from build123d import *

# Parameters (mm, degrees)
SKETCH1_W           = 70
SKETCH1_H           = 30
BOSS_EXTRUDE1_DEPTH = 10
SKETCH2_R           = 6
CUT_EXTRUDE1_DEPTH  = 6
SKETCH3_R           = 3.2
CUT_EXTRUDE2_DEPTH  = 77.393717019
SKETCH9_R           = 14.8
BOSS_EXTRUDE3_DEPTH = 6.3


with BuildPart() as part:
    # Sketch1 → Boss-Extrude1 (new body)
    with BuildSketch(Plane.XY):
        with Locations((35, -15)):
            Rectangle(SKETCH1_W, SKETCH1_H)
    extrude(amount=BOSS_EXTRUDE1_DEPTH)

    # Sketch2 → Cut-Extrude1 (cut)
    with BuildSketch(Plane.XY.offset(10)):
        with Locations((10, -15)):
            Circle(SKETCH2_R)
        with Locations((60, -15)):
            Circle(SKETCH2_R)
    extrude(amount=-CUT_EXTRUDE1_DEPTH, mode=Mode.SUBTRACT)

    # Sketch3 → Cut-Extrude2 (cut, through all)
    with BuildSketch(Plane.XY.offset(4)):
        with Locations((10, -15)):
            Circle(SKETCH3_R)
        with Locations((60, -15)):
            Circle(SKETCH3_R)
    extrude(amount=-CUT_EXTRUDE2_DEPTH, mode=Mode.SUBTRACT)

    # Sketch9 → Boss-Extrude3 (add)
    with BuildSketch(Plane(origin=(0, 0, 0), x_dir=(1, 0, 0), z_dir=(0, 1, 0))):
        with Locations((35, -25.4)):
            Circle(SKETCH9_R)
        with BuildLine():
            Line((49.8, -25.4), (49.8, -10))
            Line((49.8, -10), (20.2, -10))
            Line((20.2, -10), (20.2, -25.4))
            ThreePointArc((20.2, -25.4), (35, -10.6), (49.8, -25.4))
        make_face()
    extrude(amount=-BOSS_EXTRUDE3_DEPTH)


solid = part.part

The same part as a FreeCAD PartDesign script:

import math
import FreeCAD as App
import Part
import Sketcher
from FreeCAD import Vector
Q = App.Units.Quantity

doc = App.newDocument("Part")
params = doc.addObject("Spreadsheet::Sheet", "Params")
for row, (alias, value) in enumerate([
    ("sketch1_width", "70 mm"),
    ("sketch1_height", "30 mm"),
    ("pad1_length", "10 mm"),
    ("sketch2_diameter", "12 mm"),
    ("pocket1_length", "6 mm"),
    ("sketch3_diameter", "6.4 mm"),
    ("sketch4_radius", "14.8 mm"),
    ("sketch4_height", "15.4 mm"),
    ("pad2_length", "6.3 mm"),
], start=1):
    params.set(f"A{row}", alias)
    params.set(f"B{row}", "=" + value)
    params.setAlias(f"B{row}", alias)

body = doc.addObject("PartDesign::Body", "Body")

sketch1 = body.newObject("Sketcher::SketchObject", "Sketch")
sketch1.AttachmentSupport = (doc.getObject("XY_Plane"), [""])
sketch1.MapMode = "FlatFace"
sketch1.addGeometry([
    Part.LineSegment(Vector(0, 0, 0), Vector(0, -30, 0)),
    Part.LineSegment(Vector(0, -30, 0), Vector(70, -30, 0)),
    Part.LineSegment(Vector(70, -30, 0), Vector(70, 0, 0)),
    Part.LineSegment(Vector(70, 0, 0), Vector(0, 0, 0)),
], False)
sketch1.addConstraint([
    Sketcher.Constraint("Coincident", 0, 2, 1, 1),
    Sketcher.Constraint("Coincident", 1, 2, 2, 1),
    Sketcher.Constraint("Coincident", 2, 2, 3, 1),
    Sketcher.Constraint("Coincident", 3, 2, 0, 1),
    Sketcher.Constraint("Vertical", 0),
    Sketcher.Constraint("Horizontal", 1),
    Sketcher.Constraint("Vertical", 2),
    Sketcher.Constraint("Horizontal", 3),
    Sketcher.Constraint("Coincident", 3, 2, -1, 1),
    Sketcher.Constraint("DistanceX", 1, 1, 1, 2, Q("70 mm")),
    Sketcher.Constraint("DistanceY", 0, 2, 0, 1, Q("30 mm")),
])
sketch1.setExpression("Constraints[9]", "Params.sketch1_width")
sketch1.setExpression("Constraints[10]", "Params.sketch1_height")
pad1 = body.newObject("PartDesign::Pad", "Pad")
pad1.Profile = sketch1
pad1.setExpression("Length", "Params.pad1_length")

sketch2 = body.newObject("Sketcher::SketchObject", "Sketch001")
sketch2.AttachmentSupport = (doc.getObject("XY_Plane"), [""])
sketch2.MapMode = "FlatFace"
sketch2.AttachmentOffset = App.Placement(Vector(0, 0, 10), App.Rotation())
sketch2.addGeometry([
    Part.Circle(Vector(10, -15, 0), Vector(0, 0, 1), 6),
    Part.Circle(Vector(60, -15, 0), Vector(0, 0, 1), 6),
], False)
sketch2.addConstraint([
    Sketcher.Constraint("Equal", 0, 1),
    Sketcher.Constraint("Horizontal", 0, 3, 1, 3),
    Sketcher.Constraint("Diameter", 0, Q("12 mm")),
    Sketcher.Constraint("DistanceX", -1, 1, 0, 3, Q("10 mm")),
    Sketcher.Constraint("DistanceY", 0, 3, -1, 1, Q("15 mm")),
    Sketcher.Constraint("DistanceX", -1, 1, 1, 3, Q("60 mm")),
])
sketch2.setExpression("Constraints[2]", "Params.sketch2_diameter")
pocket1 = body.newObject("PartDesign::Pocket", "Pocket")
pocket1.Profile = sketch2
pocket1.setExpression("Length", "Params.pocket1_length")

sketch3 = body.newObject("Sketcher::SketchObject", "Sketch002")
sketch3.AttachmentSupport = (doc.getObject("XY_Plane"), [""])
sketch3.MapMode = "FlatFace"
sketch3.AttachmentOffset = App.Placement(Vector(0, 0, 4), App.Rotation())
sketch3.addGeometry([
    Part.Circle(Vector(10, -15, 0), Vector(0, 0, 1), 3.2),
    Part.Circle(Vector(60, -15, 0), Vector(0, 0, 1), 3.2),
], False)
sketch3.addConstraint([
    Sketcher.Constraint("Equal", 0, 1),
    Sketcher.Constraint("Horizontal", 0, 3, 1, 3),
    Sketcher.Constraint("Diameter", 0, Q("6.4 mm")),
    Sketcher.Constraint("DistanceX", -1, 1, 0, 3, Q("10 mm")),
    Sketcher.Constraint("DistanceY", 0, 3, -1, 1, Q("15 mm")),
    Sketcher.Constraint("DistanceX", -1, 1, 1, 3, Q("60 mm")),
])
sketch3.setExpression("Constraints[2]", "Params.sketch3_diameter")
pocket2 = body.newObject("PartDesign::Pocket", "Pocket001")
pocket2.Profile = sketch3
pocket2.Type = "ThroughAll"

sketch4 = body.newObject("Sketcher::SketchObject", "Sketch003")
sketch4.AttachmentSupport = (doc.getObject("XZ_Plane"), [""])
sketch4.MapMode = "FlatFace"
sketch4.addGeometry([
    Part.ArcOfCircle(Part.Circle(Vector(35, 25, 0), Vector(0, 0, 1), 15), math.radians(0), math.radians(180)),
    Part.LineSegment(Vector(50, 25, 0), Vector(50, 10, 0)),
    Part.LineSegment(Vector(50, 10, 0), Vector(20, 10, 0)),
    Part.LineSegment(Vector(20, 10, 0), Vector(20, 25, 0)),
], False)
sketch4.addConstraint([
    Sketcher.Constraint("Tangent", 0, 1, 1, 1),
    Sketcher.Constraint("Coincident", 1, 2, 2, 1),
    Sketcher.Constraint("Coincident", 2, 2, 3, 1),
    Sketcher.Constraint("Tangent", 3, 2, 0, 2),
    Sketcher.Constraint("Vertical", 1),
    Sketcher.Constraint("Horizontal", 2),
    Sketcher.Constraint("Vertical", 3),
    Sketcher.Constraint("Radius", 0, Q("14.8 mm")),
    Sketcher.Constraint("DistanceY", 1, 2, 1, 1, Q("15.4 mm")),
    Sketcher.Constraint("DistanceX", -1, 1, 0, 3, Q("35 mm")),
    Sketcher.Constraint("DistanceY", -1, 1, 1, 2, Q("10 mm")),
])
sketch4.setExpression("Constraints[7]", "Params.sketch4_radius")
sketch4.setExpression("Constraints[8]", "Params.sketch4_height")
pad2 = body.newObject("PartDesign::Pad", "Pad001")
pad2.Profile = sketch4
pad2.setExpression("Length", "Params.pad2_length")

doc.recompute()
